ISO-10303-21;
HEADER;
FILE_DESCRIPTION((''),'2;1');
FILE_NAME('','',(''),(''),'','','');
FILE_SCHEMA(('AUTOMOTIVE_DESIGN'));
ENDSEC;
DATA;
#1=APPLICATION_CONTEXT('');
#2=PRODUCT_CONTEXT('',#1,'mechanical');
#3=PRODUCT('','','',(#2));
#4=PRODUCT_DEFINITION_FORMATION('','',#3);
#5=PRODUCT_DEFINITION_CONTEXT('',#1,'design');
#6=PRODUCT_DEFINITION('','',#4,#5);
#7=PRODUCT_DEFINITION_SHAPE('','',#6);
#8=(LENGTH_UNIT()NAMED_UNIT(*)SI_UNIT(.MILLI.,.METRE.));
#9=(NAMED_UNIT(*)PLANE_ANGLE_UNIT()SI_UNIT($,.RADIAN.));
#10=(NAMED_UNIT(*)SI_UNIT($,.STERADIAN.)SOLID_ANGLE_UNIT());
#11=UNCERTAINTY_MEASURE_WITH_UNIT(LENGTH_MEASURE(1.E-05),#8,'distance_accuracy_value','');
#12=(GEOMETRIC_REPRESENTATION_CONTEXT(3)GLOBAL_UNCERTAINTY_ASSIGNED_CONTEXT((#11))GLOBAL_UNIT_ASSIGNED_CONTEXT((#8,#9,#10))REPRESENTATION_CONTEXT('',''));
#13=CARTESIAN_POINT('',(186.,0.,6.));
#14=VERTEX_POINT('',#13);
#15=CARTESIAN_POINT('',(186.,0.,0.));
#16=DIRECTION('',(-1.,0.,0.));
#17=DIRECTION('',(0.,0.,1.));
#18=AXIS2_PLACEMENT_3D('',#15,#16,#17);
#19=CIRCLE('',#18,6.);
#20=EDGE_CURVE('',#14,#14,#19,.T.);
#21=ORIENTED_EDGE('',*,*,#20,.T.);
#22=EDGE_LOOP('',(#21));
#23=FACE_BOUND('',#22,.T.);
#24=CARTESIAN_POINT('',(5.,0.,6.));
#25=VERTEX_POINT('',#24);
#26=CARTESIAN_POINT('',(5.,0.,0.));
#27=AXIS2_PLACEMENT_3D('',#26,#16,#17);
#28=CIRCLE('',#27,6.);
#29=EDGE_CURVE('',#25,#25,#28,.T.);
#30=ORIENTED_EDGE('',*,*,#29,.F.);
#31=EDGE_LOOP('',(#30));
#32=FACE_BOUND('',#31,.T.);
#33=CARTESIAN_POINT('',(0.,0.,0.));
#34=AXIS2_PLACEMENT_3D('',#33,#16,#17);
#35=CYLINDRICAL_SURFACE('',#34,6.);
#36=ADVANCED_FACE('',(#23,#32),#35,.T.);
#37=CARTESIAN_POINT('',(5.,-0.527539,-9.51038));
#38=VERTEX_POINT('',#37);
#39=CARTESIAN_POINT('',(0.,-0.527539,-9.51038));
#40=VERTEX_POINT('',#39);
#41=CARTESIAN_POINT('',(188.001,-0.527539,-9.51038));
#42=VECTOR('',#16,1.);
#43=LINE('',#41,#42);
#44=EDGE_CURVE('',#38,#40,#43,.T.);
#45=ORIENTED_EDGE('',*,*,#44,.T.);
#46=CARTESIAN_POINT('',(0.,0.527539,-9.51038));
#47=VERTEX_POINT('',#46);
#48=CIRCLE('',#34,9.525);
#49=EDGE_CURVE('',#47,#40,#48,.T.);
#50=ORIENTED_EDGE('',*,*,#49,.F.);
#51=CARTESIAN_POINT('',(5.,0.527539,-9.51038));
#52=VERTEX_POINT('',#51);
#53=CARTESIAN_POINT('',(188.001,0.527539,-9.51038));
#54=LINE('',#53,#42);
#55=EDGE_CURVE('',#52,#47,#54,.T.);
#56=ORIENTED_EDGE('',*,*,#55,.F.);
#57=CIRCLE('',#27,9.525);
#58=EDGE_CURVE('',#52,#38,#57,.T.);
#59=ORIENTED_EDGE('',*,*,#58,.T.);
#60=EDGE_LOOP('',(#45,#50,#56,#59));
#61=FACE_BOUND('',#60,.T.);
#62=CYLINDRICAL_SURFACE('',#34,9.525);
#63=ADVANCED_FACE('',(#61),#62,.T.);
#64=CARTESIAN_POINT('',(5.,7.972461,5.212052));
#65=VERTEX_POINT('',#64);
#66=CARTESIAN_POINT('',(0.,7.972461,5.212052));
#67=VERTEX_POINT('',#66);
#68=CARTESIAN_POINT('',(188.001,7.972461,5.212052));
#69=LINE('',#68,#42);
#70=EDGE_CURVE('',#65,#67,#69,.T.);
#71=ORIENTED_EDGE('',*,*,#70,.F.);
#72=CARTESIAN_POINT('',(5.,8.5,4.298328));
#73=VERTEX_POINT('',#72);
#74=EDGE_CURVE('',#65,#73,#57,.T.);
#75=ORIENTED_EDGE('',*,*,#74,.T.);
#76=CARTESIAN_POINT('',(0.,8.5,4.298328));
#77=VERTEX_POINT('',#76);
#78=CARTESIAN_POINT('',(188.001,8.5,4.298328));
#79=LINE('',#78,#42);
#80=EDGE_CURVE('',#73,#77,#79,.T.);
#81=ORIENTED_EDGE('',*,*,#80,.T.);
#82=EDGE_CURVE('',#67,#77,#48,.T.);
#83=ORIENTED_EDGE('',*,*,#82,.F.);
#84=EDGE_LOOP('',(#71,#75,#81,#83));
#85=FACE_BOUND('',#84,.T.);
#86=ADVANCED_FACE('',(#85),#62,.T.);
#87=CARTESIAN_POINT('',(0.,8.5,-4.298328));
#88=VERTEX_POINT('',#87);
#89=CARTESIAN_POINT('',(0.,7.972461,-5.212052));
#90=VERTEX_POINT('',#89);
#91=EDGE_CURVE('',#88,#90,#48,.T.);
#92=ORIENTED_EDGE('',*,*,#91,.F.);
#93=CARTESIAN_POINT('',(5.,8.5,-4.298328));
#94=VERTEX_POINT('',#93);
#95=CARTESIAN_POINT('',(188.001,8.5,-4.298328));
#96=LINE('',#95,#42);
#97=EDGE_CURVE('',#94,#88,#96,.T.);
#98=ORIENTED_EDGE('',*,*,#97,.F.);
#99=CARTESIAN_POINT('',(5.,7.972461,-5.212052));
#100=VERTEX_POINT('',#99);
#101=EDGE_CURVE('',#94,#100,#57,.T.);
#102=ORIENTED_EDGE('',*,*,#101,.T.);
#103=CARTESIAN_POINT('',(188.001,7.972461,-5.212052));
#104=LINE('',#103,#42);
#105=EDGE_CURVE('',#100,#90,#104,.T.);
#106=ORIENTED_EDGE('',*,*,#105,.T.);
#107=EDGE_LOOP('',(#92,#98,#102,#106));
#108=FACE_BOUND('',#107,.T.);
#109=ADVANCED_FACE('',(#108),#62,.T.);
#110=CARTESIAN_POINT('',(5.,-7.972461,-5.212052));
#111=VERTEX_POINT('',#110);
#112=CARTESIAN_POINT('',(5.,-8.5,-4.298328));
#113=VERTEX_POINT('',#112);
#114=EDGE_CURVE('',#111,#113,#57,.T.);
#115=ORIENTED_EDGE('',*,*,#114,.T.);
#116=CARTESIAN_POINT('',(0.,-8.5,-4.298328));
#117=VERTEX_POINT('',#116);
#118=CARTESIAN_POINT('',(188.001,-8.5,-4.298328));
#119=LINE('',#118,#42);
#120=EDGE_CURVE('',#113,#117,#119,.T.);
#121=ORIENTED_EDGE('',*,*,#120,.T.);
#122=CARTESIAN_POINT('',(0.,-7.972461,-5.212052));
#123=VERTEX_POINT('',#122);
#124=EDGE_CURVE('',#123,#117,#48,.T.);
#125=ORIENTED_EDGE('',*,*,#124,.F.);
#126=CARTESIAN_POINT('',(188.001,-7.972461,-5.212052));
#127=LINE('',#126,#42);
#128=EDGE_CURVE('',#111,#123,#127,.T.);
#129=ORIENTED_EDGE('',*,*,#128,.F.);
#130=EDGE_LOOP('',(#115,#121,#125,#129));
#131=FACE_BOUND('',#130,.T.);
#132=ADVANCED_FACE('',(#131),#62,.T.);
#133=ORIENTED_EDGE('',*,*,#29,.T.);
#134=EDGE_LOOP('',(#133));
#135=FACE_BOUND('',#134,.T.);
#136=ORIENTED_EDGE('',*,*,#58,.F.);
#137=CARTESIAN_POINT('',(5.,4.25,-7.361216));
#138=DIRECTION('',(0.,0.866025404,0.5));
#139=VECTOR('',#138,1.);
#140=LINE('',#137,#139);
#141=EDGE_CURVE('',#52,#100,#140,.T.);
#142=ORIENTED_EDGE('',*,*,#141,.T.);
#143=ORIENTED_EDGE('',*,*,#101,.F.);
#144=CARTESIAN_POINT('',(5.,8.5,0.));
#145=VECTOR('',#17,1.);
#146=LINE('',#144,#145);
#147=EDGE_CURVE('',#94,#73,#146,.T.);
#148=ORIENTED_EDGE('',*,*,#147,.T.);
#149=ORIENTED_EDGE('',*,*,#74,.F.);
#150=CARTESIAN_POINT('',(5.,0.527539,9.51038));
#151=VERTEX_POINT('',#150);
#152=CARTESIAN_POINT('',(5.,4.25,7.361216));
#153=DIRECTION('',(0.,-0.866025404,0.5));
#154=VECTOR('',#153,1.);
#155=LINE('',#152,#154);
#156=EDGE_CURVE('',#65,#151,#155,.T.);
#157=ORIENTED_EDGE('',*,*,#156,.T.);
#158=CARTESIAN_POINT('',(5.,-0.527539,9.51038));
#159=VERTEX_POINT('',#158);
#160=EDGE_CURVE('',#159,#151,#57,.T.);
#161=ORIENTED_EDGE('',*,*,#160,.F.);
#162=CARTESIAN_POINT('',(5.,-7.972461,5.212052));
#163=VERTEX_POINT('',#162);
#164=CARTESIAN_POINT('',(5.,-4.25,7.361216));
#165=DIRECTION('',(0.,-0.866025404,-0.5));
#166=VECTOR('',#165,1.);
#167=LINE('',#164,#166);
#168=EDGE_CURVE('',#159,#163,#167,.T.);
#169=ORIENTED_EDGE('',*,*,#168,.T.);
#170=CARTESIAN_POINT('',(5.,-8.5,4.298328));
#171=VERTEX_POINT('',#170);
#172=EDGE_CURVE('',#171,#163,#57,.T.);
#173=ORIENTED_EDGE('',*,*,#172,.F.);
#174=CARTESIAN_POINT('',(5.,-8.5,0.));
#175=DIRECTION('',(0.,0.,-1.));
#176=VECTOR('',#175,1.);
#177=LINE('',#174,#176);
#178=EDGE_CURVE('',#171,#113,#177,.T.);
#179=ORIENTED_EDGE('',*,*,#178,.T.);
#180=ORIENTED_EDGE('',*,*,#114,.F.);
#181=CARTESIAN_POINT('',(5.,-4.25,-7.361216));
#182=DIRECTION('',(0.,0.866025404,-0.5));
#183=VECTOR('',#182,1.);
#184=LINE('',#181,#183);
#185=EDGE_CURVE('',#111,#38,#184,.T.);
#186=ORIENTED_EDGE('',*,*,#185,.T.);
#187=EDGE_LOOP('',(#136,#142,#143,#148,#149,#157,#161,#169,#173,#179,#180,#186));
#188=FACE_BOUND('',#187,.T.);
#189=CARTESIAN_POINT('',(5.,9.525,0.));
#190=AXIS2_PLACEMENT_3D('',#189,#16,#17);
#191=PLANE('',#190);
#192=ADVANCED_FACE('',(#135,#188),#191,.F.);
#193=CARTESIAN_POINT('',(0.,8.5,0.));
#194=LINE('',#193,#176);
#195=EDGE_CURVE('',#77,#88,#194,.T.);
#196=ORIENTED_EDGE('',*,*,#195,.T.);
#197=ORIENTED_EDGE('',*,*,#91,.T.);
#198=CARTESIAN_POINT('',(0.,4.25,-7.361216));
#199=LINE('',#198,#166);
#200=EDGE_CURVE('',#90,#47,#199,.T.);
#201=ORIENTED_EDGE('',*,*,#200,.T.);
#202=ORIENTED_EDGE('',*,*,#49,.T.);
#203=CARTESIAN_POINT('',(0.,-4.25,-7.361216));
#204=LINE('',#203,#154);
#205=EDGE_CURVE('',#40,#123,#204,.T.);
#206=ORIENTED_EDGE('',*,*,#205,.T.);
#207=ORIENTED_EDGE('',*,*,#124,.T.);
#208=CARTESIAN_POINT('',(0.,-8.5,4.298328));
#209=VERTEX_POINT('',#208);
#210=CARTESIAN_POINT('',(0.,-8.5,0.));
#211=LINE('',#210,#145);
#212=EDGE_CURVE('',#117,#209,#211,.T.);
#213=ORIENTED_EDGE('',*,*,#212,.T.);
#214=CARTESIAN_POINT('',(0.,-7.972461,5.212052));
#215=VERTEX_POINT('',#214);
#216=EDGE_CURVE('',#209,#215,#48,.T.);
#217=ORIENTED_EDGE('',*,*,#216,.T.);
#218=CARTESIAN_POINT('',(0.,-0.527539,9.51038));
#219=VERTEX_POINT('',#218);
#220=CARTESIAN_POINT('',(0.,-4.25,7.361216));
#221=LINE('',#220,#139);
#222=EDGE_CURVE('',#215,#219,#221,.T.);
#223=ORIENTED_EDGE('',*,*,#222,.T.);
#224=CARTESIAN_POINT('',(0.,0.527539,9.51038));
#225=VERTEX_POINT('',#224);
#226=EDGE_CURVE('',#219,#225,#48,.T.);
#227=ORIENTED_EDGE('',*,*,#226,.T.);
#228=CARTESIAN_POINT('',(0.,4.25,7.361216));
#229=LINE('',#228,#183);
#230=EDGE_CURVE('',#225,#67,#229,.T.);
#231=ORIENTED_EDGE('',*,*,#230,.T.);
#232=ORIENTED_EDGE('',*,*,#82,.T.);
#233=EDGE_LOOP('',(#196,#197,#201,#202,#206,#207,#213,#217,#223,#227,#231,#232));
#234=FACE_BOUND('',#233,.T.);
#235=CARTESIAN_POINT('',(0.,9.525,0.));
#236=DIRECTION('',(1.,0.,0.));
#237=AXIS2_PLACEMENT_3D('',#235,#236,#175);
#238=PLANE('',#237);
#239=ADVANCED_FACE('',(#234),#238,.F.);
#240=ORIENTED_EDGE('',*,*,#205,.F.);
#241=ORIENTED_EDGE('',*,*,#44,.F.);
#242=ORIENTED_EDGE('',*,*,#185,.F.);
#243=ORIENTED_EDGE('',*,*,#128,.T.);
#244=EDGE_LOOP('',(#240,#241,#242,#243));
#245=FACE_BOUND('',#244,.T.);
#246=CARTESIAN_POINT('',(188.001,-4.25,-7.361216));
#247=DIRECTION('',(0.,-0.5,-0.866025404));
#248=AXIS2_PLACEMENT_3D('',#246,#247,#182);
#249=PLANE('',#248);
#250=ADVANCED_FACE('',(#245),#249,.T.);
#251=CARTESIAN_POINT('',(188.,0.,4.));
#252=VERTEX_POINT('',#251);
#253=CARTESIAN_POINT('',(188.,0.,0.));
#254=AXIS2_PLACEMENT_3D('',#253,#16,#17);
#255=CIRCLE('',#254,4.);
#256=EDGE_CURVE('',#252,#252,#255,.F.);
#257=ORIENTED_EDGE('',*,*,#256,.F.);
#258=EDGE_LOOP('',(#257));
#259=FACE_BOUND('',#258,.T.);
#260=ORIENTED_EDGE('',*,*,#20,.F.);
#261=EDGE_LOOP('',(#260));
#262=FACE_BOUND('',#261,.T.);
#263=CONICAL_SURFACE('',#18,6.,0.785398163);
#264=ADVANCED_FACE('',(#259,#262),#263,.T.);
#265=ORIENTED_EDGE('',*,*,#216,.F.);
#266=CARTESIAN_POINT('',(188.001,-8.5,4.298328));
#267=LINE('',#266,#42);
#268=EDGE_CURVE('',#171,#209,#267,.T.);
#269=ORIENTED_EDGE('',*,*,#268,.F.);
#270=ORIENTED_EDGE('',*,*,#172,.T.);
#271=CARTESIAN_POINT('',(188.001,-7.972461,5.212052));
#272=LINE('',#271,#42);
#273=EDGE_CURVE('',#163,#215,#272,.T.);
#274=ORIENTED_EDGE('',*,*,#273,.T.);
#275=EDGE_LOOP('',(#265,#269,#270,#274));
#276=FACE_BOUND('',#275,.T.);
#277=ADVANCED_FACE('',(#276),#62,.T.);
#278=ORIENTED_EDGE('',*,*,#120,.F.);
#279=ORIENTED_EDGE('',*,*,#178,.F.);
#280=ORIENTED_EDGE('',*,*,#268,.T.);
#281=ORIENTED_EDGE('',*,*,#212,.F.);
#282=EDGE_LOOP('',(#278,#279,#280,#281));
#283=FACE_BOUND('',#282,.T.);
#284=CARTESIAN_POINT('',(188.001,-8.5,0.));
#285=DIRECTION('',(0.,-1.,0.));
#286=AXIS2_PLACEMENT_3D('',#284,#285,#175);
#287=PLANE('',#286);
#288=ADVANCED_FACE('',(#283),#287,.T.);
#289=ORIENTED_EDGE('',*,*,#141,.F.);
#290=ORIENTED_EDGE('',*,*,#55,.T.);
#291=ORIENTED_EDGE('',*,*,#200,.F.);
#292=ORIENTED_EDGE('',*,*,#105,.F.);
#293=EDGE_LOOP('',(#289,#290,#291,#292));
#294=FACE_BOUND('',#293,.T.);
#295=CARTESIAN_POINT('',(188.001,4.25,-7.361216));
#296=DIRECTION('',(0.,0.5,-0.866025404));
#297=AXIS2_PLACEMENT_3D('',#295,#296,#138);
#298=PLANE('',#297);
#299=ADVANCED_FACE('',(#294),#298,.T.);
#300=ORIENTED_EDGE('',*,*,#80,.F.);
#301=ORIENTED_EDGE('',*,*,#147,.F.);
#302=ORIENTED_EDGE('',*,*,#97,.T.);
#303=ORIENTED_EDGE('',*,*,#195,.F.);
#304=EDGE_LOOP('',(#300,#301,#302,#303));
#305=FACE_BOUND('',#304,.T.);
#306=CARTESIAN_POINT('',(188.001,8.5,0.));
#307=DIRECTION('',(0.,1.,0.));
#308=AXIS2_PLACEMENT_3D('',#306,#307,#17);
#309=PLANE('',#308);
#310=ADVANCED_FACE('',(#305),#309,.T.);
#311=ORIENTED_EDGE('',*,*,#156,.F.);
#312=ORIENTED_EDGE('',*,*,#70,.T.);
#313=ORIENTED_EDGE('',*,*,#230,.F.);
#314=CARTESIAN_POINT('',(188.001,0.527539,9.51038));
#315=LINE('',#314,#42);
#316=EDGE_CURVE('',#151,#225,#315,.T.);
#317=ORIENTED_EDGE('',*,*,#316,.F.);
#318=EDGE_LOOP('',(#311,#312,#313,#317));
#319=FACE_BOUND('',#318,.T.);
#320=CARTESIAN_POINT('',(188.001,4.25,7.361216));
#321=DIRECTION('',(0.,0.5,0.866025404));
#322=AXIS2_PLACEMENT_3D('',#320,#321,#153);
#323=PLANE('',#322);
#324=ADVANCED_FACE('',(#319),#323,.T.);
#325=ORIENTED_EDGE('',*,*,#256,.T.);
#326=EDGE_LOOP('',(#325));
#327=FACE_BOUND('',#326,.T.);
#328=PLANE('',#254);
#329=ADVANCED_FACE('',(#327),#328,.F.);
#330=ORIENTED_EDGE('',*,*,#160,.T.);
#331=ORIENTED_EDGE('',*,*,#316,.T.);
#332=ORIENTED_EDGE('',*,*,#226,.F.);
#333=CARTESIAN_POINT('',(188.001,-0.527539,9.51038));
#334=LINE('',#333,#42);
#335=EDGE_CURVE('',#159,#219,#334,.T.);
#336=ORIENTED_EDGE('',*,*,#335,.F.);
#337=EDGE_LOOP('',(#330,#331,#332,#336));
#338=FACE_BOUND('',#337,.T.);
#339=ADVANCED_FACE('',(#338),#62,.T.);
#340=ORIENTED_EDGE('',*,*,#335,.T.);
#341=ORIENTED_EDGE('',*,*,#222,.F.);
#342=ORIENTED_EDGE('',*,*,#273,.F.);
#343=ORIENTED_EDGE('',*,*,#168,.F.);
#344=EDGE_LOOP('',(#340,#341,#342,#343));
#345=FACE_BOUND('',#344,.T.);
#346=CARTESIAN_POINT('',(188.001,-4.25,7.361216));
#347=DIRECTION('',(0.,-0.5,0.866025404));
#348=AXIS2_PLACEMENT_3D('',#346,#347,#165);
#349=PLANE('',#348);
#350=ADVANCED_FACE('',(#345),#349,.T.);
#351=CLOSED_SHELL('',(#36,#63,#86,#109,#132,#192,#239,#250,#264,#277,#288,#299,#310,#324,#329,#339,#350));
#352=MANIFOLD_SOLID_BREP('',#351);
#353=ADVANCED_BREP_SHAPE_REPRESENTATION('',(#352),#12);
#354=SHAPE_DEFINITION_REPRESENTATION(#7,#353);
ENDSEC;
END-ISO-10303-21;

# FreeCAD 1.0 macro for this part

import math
import FreeCAD as App
import Part
import Sketcher
from FreeCAD import Vector
Q = App.Units.Quantity


def edges_at(feature, points):
    """Names of the edges that pass closest to the given points."""
    edges = feature.Shape.Edges
    near = lambda p: min(range(len(edges)), key=lambda i: edges[i].distToShape(Part.Vertex(*p))[0])
    return sorted({f"Edge{near(p) + 1}" for p in points})

doc = App.newDocument("Part")
body = doc.addObject("PartDesign::Body", "Body")

sketch1 = body.newObject("Sketcher::SketchObject", "Sketch")
sketch1.AttachmentSupport = (doc.getObject("XY_Plane"), [""])
sketch1.MapMode = "FlatFace"
sketch1.addGeometry([
    Part.LineSegment(Vector(0, 0, 0), Vector(188, 0, 0)),
    Part.LineSegment(Vector(188, 0, 0), Vector(188, 6, 0)),
    Part.LineSegment(Vector(188, 6, 0), Vector(5, 6, 0)),
    Part.LineSegment(Vector(5, 6, 0), Vector(5, 9.525, 0)),
    Part.LineSegment(Vector(5, 9.525, 0), Vector(0, 9.525, 0)),
    Part.LineSegment(Vector(0, 9.525, 0), Vector(0, 0, 0)),
], False)
sketch1.addConstraint([
    Sketcher.Constraint("Coincident", 0, 2, 1, 1),
    Sketcher.Constraint("Coincident", 1, 2, 2, 1),
    Sketcher.Constraint("Coincident", 2, 2, 3, 1),
    Sketcher.Constraint("Coincident", 3, 2, 4, 1),
    Sketcher.Constraint("Coincident", 4, 2, 5, 1),
    Sketcher.Constraint("Coincident", 5, 2, 0, 1),
    Sketcher.Constraint("Horizontal", 0),
    Sketcher.Constraint("Vertical", 1),
    Sketcher.Constraint("Horizontal", 2),
    Sketcher.Constraint("Vertical", 3),
    Sketcher.Constraint("Horizontal", 4),
    Sketcher.Constraint("Vertical", 5),
    Sketcher.Constraint("Coincident", 5, 2, -1, 1),
    Sketcher.Constraint("DistanceX", 0, 1, 0, 2, 188.0),
    Sketcher.Constraint("DistanceX", 2, 2, 2, 1, 183.0),
    Sketcher.Constraint("DistanceY", 1, 1, 1, 2, 6.0),
    Sketcher.Constraint("DistanceY", 3, 1, 3, 2, 3.525),
])
revolution = body.newObject("PartDesign::Revolution", "Revolution")
revolution.Profile = sketch1
revolution.ReferenceAxis = (sketch1, ["H_Axis"])
revolution.Angle = 360
doc.recompute()

chamfer = body.newObject("PartDesign::Chamfer", "Chamfer")
chamfer.Base = (revolution, edges_at(revolution, [(188, 0, -6)]))
chamfer.Size = 2

sketch2 = body.newObject("Sketcher::SketchObject", "Sketch001")
sketch2.AttachmentSupport = (doc.getObject("YZ_Plane"), [""])
sketch2.MapMode = "FlatFace"
sketch2.addGeometry([
    Part.LineSegment(Vector(8.5, -4.298328, 0), Vector(8.5, 4.298328, 0)),
    Part.ArcOfCircle(Part.Circle(Vector(0, 0, 0), Vector(0, 0, 1), 9.525), math.radians(-26.82507), math.radians(26.82507)),
], False)
sketch2.addConstraint([
    Sketcher.Constraint("Coincident", 0, 1, 1, 1),
    Sketcher.Constraint("Coincident", 1, 2, 0, 2),
    Sketcher.Constraint("Vertical", 0),
    Sketcher.Constraint("Coincident", 1, 3, -1, 1),
    Sketcher.Constraint("Radius", 1, 9.525),
    Sketcher.Constraint("DistanceX", -1, 1, 0, 1, 8.5),
])
pocket1 = body.newObject("PartDesign::Pocket", "Pocket")
pocket1.Profile = sketch2
pocket1.Type = "UpToFirst"
pocket1.Reversed = True

sketch3 = body.newObject("Sketcher::SketchObject", "Sketch002")
sketch3.AttachmentSupport = (doc.getObject("YZ_Plane"), [""])
sketch3.MapMode = "FlatFace"
sketch3.addGeometry([
    Part.LineSegment(Vector(0.527539, -9.51038, 0), Vector(7.972461, -5.212052, 0)),
    Part.ArcOfCircle(Part.Circle(Vector(0, 0, 0), Vector(0, 0, 1), 9.525), math.radians(-86.82507), math.radians(-33.17493)),
], False)
sketch3.addConstraint([
    Sketcher.Constraint("Coincident", 0, 1, 1, 1),
    Sketcher.Constraint("Coincident", 1, 2, 0, 2),
    Sketcher.Constraint("Coincident", 1, 3, -1, 1),
    Sketcher.Constraint("Angle", 0, Q("30 deg")),
    Sketcher.Constraint("Radius", 1, 9.525),
    Sketcher.Constraint("DistanceX", -1, 1, 0, 1, 0.527539),
])
pocket2 = body.newObject("PartDesign::Pocket", "Pocket001")
pocket2.Profile = sketch3
pocket2.Type = "UpToFirst"
pocket2.Reversed = True

sketch4 = body.newObject("Sketcher::SketchObject", "Sketch003")
sketch4.AttachmentSupport = (doc.getObject("YZ_Plane"), [""])
sketch4.MapMode = "FlatFace"
sketch4.addGeometry([
    Part.LineSegment(Vector(-7.972461, -5.212052, 0), Vector(-0.527539, -9.51038, 0)),
    Part.ArcOfCircle(Part.Circle(Vector(0, 0, 0), Vector(0, 0, 1), 9.525), math.radians(-146.82507), math.radians(-93.17493)),
], False)
sketch4.addConstraint([
    Sketcher.Constraint("Coincident", 0, 1, 1, 1),
    Sketcher.Constraint("Coincident", 1, 2, 0, 2),
    Sketcher.Constraint("Coincident", 1, 3, -1, 1),
    Sketcher.Constraint("Angle", 0, Q("-30 deg")),
    Sketcher.Constraint("Radius", 1, 9.525),
    Sketcher.Constraint("DistanceX", 0, 1, -1, 1, 7.972461),
])
pocket3 = body.newObject("PartDesign::Pocket", "Pocket002")
pocket3.Profile = sketch4
pocket3.Type = "UpToFirst"
pocket3.Reversed = True

sketch5 = body.newObject("Sketcher::SketchObject", "Sketch004")
sketch5.AttachmentSupport = (doc.getObject("YZ_Plane"), [""])
sketch5.MapMode = "FlatFace"
sketch5.addGeometry([
    Part.ArcOfCircle(Part.Circle(Vector(0, 0, 0), Vector(0, 0, 1), 9.525), math.radians(153.17493), math.radians(206.82507)),
    Part.LineSegment(Vector(-8.5, 4.298328, 0), Vector(-8.5, -4.298328, 0)),
], False)
sketch5.addConstraint([
    Sketcher.Constraint("Coincident", 0, 1, 1, 1),
    Sketcher.Constraint("Coincident", 1, 2, 0, 2),
    Sketcher.Constraint("Vertical", 1),
    Sketcher.Constraint("Coincident", 0, 3, -1, 1),
    Sketcher.Constraint("Radius", 0, 9.525),
    Sketcher.Constraint("DistanceX", 0, 1, -1, 1, 8.5),
])
pocket4 = body.newObject("PartDesign::Pocket", "Pocket003")
pocket4.Profile = sketch5
pocket4.Type = "UpToFirst"
pocket4.Reversed = True

sketch6 = body.newObject("Sketcher::SketchObject", "Sketch005")
sketch6.AttachmentSupport = (doc.getObject("YZ_Plane"), [""])
sketch6.MapMode = "FlatFace"
sketch6.addGeometry([
    Part.ArcOfCircle(Part.Circle(Vector(0, 0, 0), Vector(0, 0, 1), 9.525), math.radians(93.17493), math.radians(146.82507)),
    Part.LineSegment(Vector(-0.527539, 9.51038, 0), Vector(-7.972461, 5.212052, 0)),
], False)
sketch6.addConstraint([
    Sketcher.Constraint("Coincident", 0, 1, 1, 1),
    Sketcher.Constraint("Coincident", 1, 2, 0, 2),
    Sketcher.Constraint("Coincident", 0, 3, -1, 1),
    Sketcher.Constraint("Angle", 1, Q("-150 deg")),
    Sketcher.Constraint("Radius", 0, 9.525),
    Sketcher.Constraint("DistanceX", 0, 1, -1, 1, 0.527539),
])
pocket5 = body.newObject("PartDesign::Pocket", "Pocket004")
pocket5.Profile = sketch6
pocket5.Type = "UpToFirst"
pocket5.Reversed = True

sketch7 = body.newObject("Sketcher::SketchObject", "Sketch006")
sketch7.AttachmentSupport = (doc.getObject("YZ_Plane"), [""])
sketch7.MapMode = "FlatFace"
sketch7.addGeometry([
    Part.ArcOfCircle(Part.Circle(Vector(0, 0, 0), Vector(0, 0, 1), 9.525), math.radians(33.17493), math.radians(86.82507)),
    Part.LineSegment(Vector(7.972461, 5.212052, 0), Vector(0.527539, 9.51038, 0)),
], False)
sketch7.addConstraint([
    Sketcher.Constraint("Coincident", 0, 1, 1, 1),
    Sketcher.Constraint("Coincident", 1, 2, 0, 2),
    Sketcher.Constraint("Coincident", 0, 3, -1, 1),
    Sketcher.Constraint("Angle", 1, Q("150 deg")),
    Sketcher.Constraint("Radius", 0, 9.525),
    Sketcher.Constraint("DistanceX", -1, 1, 0, 1, 7.972461),
])
pocket6 = body.newObject("PartDesign::Pocket", "Pocket005")
pocket6.Profile = sketch7
pocket6.Type = "UpToFirst"
pocket6.Reversed = True

doc.recompute()
